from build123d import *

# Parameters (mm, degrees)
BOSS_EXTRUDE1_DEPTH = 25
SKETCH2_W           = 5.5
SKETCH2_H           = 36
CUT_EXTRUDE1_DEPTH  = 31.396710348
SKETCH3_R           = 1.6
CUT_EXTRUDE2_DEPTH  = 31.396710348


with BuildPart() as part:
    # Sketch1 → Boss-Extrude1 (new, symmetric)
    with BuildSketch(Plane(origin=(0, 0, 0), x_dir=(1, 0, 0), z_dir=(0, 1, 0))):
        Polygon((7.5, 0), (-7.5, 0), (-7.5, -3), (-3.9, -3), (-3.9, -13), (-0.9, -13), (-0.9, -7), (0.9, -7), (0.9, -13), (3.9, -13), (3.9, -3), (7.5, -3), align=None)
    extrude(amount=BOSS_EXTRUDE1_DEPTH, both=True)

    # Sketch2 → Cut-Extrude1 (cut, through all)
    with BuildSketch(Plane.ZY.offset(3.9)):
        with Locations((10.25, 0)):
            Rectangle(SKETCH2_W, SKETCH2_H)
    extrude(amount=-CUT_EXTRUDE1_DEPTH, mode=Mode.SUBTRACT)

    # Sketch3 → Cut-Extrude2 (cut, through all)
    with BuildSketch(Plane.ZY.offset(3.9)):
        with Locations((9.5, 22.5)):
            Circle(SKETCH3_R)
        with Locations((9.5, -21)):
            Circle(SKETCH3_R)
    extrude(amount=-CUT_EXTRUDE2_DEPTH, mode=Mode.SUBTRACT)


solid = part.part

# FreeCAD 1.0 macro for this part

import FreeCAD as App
import Part
import Sketcher

V = App.Vector
Q = App.Units.Quantity

doc = App.newDocument("Part")
body = doc.addObject("PartDesign::Body", "Body")

sketch1 = body.newObject("Sketcher::SketchObject", "Sketch")
sketch1.AttachmentSupport = (doc.getObject("XZ_Plane"), [""])
sketch1.MapMode = "FlatFace"
sketch1.addGeometry(Part.LineSegment(V(7.5, 0, 0), V(-7.5, 0, 0)), False)
sketch1.addGeometry(Part.LineSegment(V(-7.5, 0, 0), V(-7.5, 3, 0)), False)
sketch1.addGeometry(Part.LineSegment(V(-7.5, 3, 0), V(-3.9, 3, 0)), False)
sketch1.addGeometry(Part.LineSegment(V(-3.9, 3, 0), V(-3.9, 13, 0)), False)
sketch1.addGeometry(Part.LineSegment(V(-3.9, 13, 0), V(-0.9, 13, 0)), False)
sketch1.addGeometry(Part.LineSegment(V(-0.9, 13, 0), V(-0.9, 7, 0)), False)
sketch1.addGeometry(Part.LineSegment(V(-0.9, 7, 0), V(0.9, 7, 0)), False)
sketch1.addGeometry(Part.LineSegment(V(0.9, 7, 0), V(0.9, 13, 0)), False)
sketch1.addGeometry(Part.LineSegment(V(0.9, 13, 0), V(3.9, 13, 0)), False)
sketch1.addGeometry(Part.LineSegment(V(3.9, 13, 0), V(3.9, 3, 0)), False)
sketch1.addGeometry(Part.LineSegment(V(3.9, 3, 0), V(7.5, 3, 0)), False)
sketch1.addGeometry(Part.LineSegment(V(7.5, 3, 0), V(7.5, 0, 0)), False)
sketch1.addConstraint(Sketcher.Constraint("Coincident", 0, 2, 1, 1))
sketch1.addConstraint(Sketcher.Constraint("Coincident", 1, 2, 2, 1))
sketch1.addConstraint(Sketcher.Constraint("Coincident", 2, 2, 3, 1))
sketch1.addConstraint(Sketcher.Constraint("Coincident", 3, 2, 4, 1))
sketch1.addConstraint(Sketcher.Constraint("Coincident", 4, 2, 5, 1))
sketch1.addConstraint(Sketcher.Constraint("Coincident", 5, 2, 6, 1))
sketch1.addConstraint(Sketcher.Constraint("Coincident", 6, 2, 7, 1))
sketch1.addConstraint(Sketcher.Constraint("Coincident", 7, 2, 8, 1))
sketch1.addConstraint(Sketcher.Constraint("Coincident", 8, 2, 9, 1))
sketch1.addConstraint(Sketcher.Constraint("Coincident", 9, 2, 10, 1))
sketch1.addConstraint(Sketcher.Constraint("Coincident", 10, 2, 11, 1))
sketch1.addConstraint(Sketcher.Constraint("Coincident", 11, 2, 0, 1))
sketch1.addConstraint(Sketcher.Constraint("Horizontal", 0))
sketch1.addConstraint(Sketcher.Constraint("Vertical", 1))
sketch1.addConstraint(Sketcher.Constraint("Horizontal", 2))
sketch1.addConstraint(Sketcher.Constraint("Vertical", 3))
sketch1.addConstraint(Sketcher.Constraint("Horizontal", 4))
sketch1.addConstraint(Sketcher.Constraint("Vertical", 5))
sketch1.addConstraint(Sketcher.Constraint("Horizontal", 6))
sketch1.addConstraint(Sketcher.Constraint("Vertical", 7))
sketch1.addConstraint(Sketcher.Constraint("Horizontal", 8))
sketch1.addConstraint(Sketcher.Constraint("Vertical", 9))
sketch1.addConstraint(Sketcher.Constraint("Horizontal", 10))
sketch1.addConstraint(Sketcher.Constraint("Vertical", 11))
sketch1.addConstraint(Sketcher.Constraint("Symmetric", 0, 2, 11, 2, -1, 1))
sketch1.addConstraint(Sketcher.Constraint("Symmetric", 4, 2, 7, 2, -2))
sketch1.addConstraint(Sketcher.Constraint("Symmetric", 2, 2, 9, 2, -2))
sketch1.addConstraint(Sketcher.Constraint("Equal", 8, 1))
sketch1.addConstraint(Sketcher.Constraint("DistanceX", 0, 2, 0, 1, Q("15 mm")))
sketch1.addConstraint(Sketcher.Constraint("DistanceX", 4, 1, 4, 2, Q("3 mm")))
sketch1.addConstraint(Sketcher.Constraint("DistanceY", 3, 1, 3, 2, Q("10 mm")))
sketch1.addConstraint(Sketcher.Constraint("DistanceY", 5, 2, 5, 1, Q("6 mm")))
sketch1.addConstraint(Sketcher.Constraint("DistanceX", 2, 1, 2, 2, Q("3.6 mm")))
pad1 = body.newObject("PartDesign::Pad", "Pad")
pad1.Profile = sketch1
pad1.Length = 50
pad1.Midplane = True

sketch2 = body.newObject("Sketcher::SketchObject", "Sketch001")
sketch2.AttachmentSupport = (doc.getObject("YZ_Plane"), [""])
sketch2.MapMode = "FlatFace"
sketch2.AttachmentOffset = App.Placement(V(0, 0, -3.9), App.Rotation())
sketch2.addGeometry(Part.LineSegment(V(18, 8, 0), V(-18, 8, 0)), False)
sketch2.addGeometry(Part.LineSegment(V(-18, 8, 0), V(-18, 13, 0)), False)
sketch2.addGeometry(Part.LineSegment(V(-18, 13, 0), V(18, 13, 0)), False)
sketch2.addGeometry(Part.LineSegment(V(18, 13, 0), V(18, 8, 0)), False)
sketch2.addConstraint(Sketcher.Constraint("Coincident", 0, 2, 1, 1))
sketch2.addConstraint(Sketcher.Constraint("Coincident", 1, 2, 2, 1))
sketch2.addConstraint(Sketcher.Constraint("Coincident", 2, 2, 3, 1))
sketch2.addConstraint(Sketcher.Constraint("Coincident", 3, 2, 0, 1))
sketch2.addConstraint(Sketcher.Constraint("Horizontal", 0))
sketch2.addConstraint(Sketcher.Constraint("Vertical", 1))
sketch2.addConstraint(Sketcher.Constraint("Horizontal", 2))
sketch2.addConstraint(Sketcher.Constraint("Vertical", 3))
sketch2.addConstraint(Sketcher.Constraint("DistanceX", 0, 2, 0, 1, Q("36 mm")))
sketch2.addConstraint(Sketcher.Constraint("DistanceY", 1, 1, 1, 2, Q("5.5 mm")))
sketch2.addConstraint(Sketcher.Constraint("DistanceX", 0, 2, -1, 1, Q("18 mm")))
sketch2.addConstraint(Sketcher.Constraint("DistanceY", -1, 1, 1, 2, Q("13 mm")))
pocket1 = body.newObject("PartDesign::Pocket", "Pocket")
pocket1.Profile = sketch2
pocket1.Type = "ThroughAll"
pocket1.Reversed = True

sketch3 = body.newObject("Sketcher::SketchObject", "Sketch002")
sketch3.AttachmentSupport = (doc.getObject("YZ_Plane"), [""])
sketch3.MapMode = "FlatFace"
sketch3.AttachmentOffset = App.Placement(V(0, 0, -3.9), App.Rotation())
sketch3.addGeometry(Part.Circle(V(22.5, 9.5, 0), V(0, 0, 1), 1.6), False)
sketch3.addGeometry(Part.Circle(V(-21, 9.5, 0), V(0, 0, 1), 1.6), False)
sketch3.addConstraint(Sketcher.Constraint("Equal", 0, 1))
sketch3.addConstraint(Sketcher.Constraint("Horizontal", 0, 3, 1, 3))
sketch3.addConstraint(Sketcher.Constraint("Diameter", 0, Q("3.2 mm")))
sketch3.addConstraint(Sketcher.Constraint("DistanceX", 1, 3, -1, 1, Q("21 mm")))
sketch3.addConstraint(Sketcher.Constraint("DistanceX", -1, 1, 0, 3, Q("22.5 mm")))
sketch3.addConstraint(Sketcher.Constraint("DistanceY", -1, 1, 0, 3, Q("9.5 mm")))
pocket2 = body.newObject("PartDesign::Pocket", "Pocket001")
pocket2.Profile = sketch3
pocket2.Type = "ThroughAll"
pocket2.Reversed = True

doc.recompute()
